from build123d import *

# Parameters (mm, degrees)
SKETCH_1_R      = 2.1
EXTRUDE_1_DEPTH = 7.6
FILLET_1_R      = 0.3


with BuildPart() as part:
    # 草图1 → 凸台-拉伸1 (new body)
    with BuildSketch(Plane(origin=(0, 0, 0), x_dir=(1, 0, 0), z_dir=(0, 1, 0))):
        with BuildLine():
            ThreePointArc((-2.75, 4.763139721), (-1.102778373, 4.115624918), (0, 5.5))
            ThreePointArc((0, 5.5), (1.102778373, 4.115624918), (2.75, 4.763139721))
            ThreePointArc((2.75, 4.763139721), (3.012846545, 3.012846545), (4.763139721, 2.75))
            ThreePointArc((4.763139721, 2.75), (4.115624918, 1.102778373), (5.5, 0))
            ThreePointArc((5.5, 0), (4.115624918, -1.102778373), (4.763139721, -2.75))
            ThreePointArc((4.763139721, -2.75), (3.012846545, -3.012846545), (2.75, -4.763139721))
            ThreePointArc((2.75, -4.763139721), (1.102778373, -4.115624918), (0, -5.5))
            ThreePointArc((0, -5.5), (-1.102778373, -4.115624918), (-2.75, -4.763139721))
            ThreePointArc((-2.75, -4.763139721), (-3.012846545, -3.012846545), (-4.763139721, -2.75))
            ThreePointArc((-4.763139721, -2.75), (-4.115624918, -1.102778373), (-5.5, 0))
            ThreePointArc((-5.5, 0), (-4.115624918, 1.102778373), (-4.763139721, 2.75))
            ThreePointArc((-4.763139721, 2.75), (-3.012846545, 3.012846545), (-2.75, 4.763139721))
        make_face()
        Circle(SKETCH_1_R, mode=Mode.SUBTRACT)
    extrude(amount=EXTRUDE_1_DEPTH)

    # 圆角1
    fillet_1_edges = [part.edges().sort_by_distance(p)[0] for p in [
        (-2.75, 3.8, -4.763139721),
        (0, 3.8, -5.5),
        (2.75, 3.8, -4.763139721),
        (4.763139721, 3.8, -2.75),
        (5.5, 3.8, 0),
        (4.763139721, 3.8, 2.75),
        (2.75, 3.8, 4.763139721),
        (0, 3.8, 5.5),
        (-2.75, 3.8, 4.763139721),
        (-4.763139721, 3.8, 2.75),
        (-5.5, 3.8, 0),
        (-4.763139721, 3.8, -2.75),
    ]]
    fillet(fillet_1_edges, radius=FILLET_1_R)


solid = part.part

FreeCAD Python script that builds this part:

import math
import FreeCAD as App
import Part
import Sketcher


def edges_at(feature, points):
    """Names of the edges that pass closest to the given points."""
    edges = feature.Shape.Edges
    near = lambda p: min(range(len(edges)), key=lambda i: edges[i].distToShape(Part.Vertex(*p))[0])
    return sorted({f"Edge{near(p) + 1}" for p in points})

doc = App.newDocument("Part")
body = doc.addObject("PartDesign::Body", "Body")

sketch1 = body.newObject("Sketcher::SketchObject", "Sketch")
sketch1.AttachmentSupport = (doc.getObject("XZ_Plane"), [""])
sketch1.MapMode = "FlatFace"
sketch1.addGeometry(Part.ArcOfCircle(Part.Circle(App.Vector(-1.48821, -5.554074, 0), App.Vector(0, 0, 1), 1.489192), math.radians(2.080904), math.radians(147.919096)), False)
sketch1.addGeometry(Part.ArcOfCircle(Part.Circle(App.Vector(-4.065864, -4.065864, 0), App.Vector(0, 0, 1), 1.489192), math.radians(-27.919096), math.radians(117.919096)), False)
sketch1.addGeometry(Part.ArcOfCircle(Part.Circle(App.Vector(-5.554074, -1.48821, 0), App.Vector(0, 0, 1), 1.489192), math.radians(-57.919096), math.radians(87.919096)), False)
sketch1.addGeometry(Part.ArcOfCircle(Part.Circle(App.Vector(-5.554074, 1.48821, 0), App.Vector(0, 0, 1), 1.489192), math.radians(-87.919096), math.radians(57.919096)), False)
sketch1.addGeometry(Part.ArcOfCircle(Part.Circle(App.Vector(-4.065864, 4.065864, 0), App.Vector(0, 0, 1), 1.489192), math.radians(-117.919096), math.radians(27.919096)), False)
sketch1.addGeometry(Part.ArcOfCircle(Part.Circle(App.Vector(-1.48821, 5.554074, 0), App.Vector(0, 0, 1), 1.489192), math.radians(-147.919096), math.radians(-2.080904)), False)
sketch1.addGeometry(Part.ArcOfCircle(Part.Circle(App.Vector(1.48821, 5.554074, 0), App.Vector(0, 0, 1), 1.489192), math.radians(-177.919096), math.radians(-32.080904)), False)
sketch1.addGeometry(Part.ArcOfCircle(Part.Circle(App.Vector(4.065864, 4.065864, 0), App.Vector(0, 0, 1), 1.489192), math.radians(152.080904), math.radians(297.919096)), False)
sketch1.addGeometry(Part.ArcOfCircle(Part.Circle(App.Vector(5.554074, 1.48821, 0), App.Vector(0, 0, 1), 1.489192), math.radians(122.080904), math.radians(267.919096)), False)
sketch1.addGeometry(Part.ArcOfCircle(Part.Circle(App.Vector(5.554074, -1.48821, 0), App.Vector(0, 0, 1), 1.489192), math.radians(92.080904), math.radians(237.919096)), False)
sketch1.addGeometry(Part.ArcOfCircle(Part.Circle(App.Vector(4.065864, -4.065864, 0), App.Vector(0, 0, 1), 1.489192), math.radians(62.080904), math.radians(207.919096)), False)
sketch1.addGeometry(Part.ArcOfCircle(Part.Circle(App.Vector(1.48821, -5.554074, 0), App.Vector(0, 0, 1), 1.489192), math.radians(32.080904), math.radians(177.919096)), False)
sketch1.addGeometry(Part.Circle(App.Vector(0, 0, 0), App.Vector(0, 0, 1), 2.1), False)
sketch1.addConstraint(Sketcher.Constraint("Coincident", 0, 2, 1, 1))
sketch1.addConstraint(Sketcher.Constraint("Coincident", 1, 2, 2, 1))
sketch1.addConstraint(Sketcher.Constraint("Coincident", 2, 2, 3, 1))
sketch1.addConstraint(Sketcher.Constraint("Coincident", 3, 2, 4, 1))
sketch1.addConstraint(Sketcher.Constraint("Coincident", 4, 2, 5, 1))
sketch1.addConstraint(Sketcher.Constraint("Coincident", 5, 2, 6, 1))
sketch1.addConstraint(Sketcher.Constraint("Coincident", 6, 2, 7, 1))
sketch1.addConstraint(Sketcher.Constraint("Coincident", 7, 2, 8, 1))
sketch1.addConstraint(Sketcher.Constraint("Coincident", 8, 2, 9, 1))
sketch1.addConstraint(Sketcher.Constraint("Coincident", 9, 2, 10, 1))
sketch1.addConstraint(Sketcher.Constraint("Coincident", 10, 2, 11, 1))
sketch1.addConstraint(Sketcher.Constraint("Coincident", 11, 2, 0, 1))
sketch1.addConstraint(Sketcher.Constraint("Coincident", 12, 3, -1, 1))
sketch1.addConstraint(Sketcher.Constraint("Equal", 0, 1))
sketch1.addConstraint(Sketcher.Constraint("Equal", 1, 2))
sketch1.addConstraint(Sketcher.Constraint("Equal", 2, 3))
sketch1.addConstraint(Sketcher.Constraint("Equal", 3, 4))
sketch1.addConstraint(Sketcher.Constraint("Equal", 4, 5))
sketch1.addConstraint(Sketcher.Constraint("Equal", 5, 6))
sketch1.addConstraint(Sketcher.Constraint("Equal", 6, 7))
sketch1.addConstraint(Sketcher.Constraint("Equal", 7, 8))
sketch1.addConstraint(Sketcher.Constraint("Equal", 8, 9))
sketch1.addConstraint(Sketcher.Constraint("Equal", 9, 10))
sketch1.addConstraint(Sketcher.Constraint("Equal", 10, 11))
sketch1.addConstraint(Sketcher.Constraint("Symmetric", 0, 3, 6, 3, -1, 1))
sketch1.addConstraint(Sketcher.Constraint("Symmetric", 1, 3, 7, 3, -1, 1))
sketch1.addConstraint(Sketcher.Constraint("Symmetric", 2, 3, 8, 3, -1, 1))
sketch1.addConstraint(Sketcher.Constraint("Symmetric", 3, 3, 9, 3, -1, 1))
sketch1.addConstraint(Sketcher.Constraint("Symmetric", 4, 3, 10, 3, -1, 1))
sketch1.addConstraint(Sketcher.Constraint("Symmetric", 5, 3, 11, 3, -1, 1))
sketch1.addConstraint(Sketcher.Constraint("Symmetric", 5, 3, 6, 3, -2))
sketch1.addConstraint(Sketcher.Constraint("Symmetric", 4, 3, 7, 3, -2))
sketch1.addConstraint(Sketcher.Constraint("Symmetric", 3, 3, 8, 3, -2))
sketch1.addConstraint(Sketcher.Constraint("Diameter", 12, 4.2))
sketch1.addConstraint(Sketcher.Constraint("DistanceX", 2, 2, -1, 1, 5.5))
sketch1.addConstraint(Sketcher.Constraint("DistanceY", -1, 1, 5, 2, 5.5))
sketch1.addConstraint(Sketcher.Constraint("DistanceX", 0, 2, -1, 1, 2.75))
sketch1.addConstraint(Sketcher.Constraint("DistanceY", 1, 2, -1, 1, 2.75))
sketch1.addConstraint(Sketcher.Constraint("Radius", 0, 1.489192))
sketch1.addConstraint(Sketcher.Constraint("DistanceX", 0, 3, -1, 1, 1.48821))
sketch1.addConstraint(Sketcher.Constraint("DistanceY", 2, 3, -1, 1, 1.48821))
pad1 = body.newObject("PartDesign::Pad", "Pad")
pad1.Profile = sketch1
pad1.Length = 7.6
pad1.Reversed = True
doc.recompute()

fillet = body.newObject("PartDesign::Fillet", "Fillet")
fillet.Base = (pad1, edges_at(pad1, [
    (-2.75, 3.8, -4.763),
    (0, 3.8, -5.5),
    (2.75, 3.8, -4.763),
    (4.763, 3.8, -2.75),
    (5.5, 3.8, 0),
    (4.763, 3.8, 2.75),
    (2.75, 3.8, 4.763),
    (0, 3.8, 5.5),
    (-2.75, 3.8, 4.763),
    (-4.763, 3.8, 2.75),
    (-5.5, 3.8, 0),
    (-4.763, 3.8, -2.75),
]))
fillet.Radius = 0.3

doc.recompute()
